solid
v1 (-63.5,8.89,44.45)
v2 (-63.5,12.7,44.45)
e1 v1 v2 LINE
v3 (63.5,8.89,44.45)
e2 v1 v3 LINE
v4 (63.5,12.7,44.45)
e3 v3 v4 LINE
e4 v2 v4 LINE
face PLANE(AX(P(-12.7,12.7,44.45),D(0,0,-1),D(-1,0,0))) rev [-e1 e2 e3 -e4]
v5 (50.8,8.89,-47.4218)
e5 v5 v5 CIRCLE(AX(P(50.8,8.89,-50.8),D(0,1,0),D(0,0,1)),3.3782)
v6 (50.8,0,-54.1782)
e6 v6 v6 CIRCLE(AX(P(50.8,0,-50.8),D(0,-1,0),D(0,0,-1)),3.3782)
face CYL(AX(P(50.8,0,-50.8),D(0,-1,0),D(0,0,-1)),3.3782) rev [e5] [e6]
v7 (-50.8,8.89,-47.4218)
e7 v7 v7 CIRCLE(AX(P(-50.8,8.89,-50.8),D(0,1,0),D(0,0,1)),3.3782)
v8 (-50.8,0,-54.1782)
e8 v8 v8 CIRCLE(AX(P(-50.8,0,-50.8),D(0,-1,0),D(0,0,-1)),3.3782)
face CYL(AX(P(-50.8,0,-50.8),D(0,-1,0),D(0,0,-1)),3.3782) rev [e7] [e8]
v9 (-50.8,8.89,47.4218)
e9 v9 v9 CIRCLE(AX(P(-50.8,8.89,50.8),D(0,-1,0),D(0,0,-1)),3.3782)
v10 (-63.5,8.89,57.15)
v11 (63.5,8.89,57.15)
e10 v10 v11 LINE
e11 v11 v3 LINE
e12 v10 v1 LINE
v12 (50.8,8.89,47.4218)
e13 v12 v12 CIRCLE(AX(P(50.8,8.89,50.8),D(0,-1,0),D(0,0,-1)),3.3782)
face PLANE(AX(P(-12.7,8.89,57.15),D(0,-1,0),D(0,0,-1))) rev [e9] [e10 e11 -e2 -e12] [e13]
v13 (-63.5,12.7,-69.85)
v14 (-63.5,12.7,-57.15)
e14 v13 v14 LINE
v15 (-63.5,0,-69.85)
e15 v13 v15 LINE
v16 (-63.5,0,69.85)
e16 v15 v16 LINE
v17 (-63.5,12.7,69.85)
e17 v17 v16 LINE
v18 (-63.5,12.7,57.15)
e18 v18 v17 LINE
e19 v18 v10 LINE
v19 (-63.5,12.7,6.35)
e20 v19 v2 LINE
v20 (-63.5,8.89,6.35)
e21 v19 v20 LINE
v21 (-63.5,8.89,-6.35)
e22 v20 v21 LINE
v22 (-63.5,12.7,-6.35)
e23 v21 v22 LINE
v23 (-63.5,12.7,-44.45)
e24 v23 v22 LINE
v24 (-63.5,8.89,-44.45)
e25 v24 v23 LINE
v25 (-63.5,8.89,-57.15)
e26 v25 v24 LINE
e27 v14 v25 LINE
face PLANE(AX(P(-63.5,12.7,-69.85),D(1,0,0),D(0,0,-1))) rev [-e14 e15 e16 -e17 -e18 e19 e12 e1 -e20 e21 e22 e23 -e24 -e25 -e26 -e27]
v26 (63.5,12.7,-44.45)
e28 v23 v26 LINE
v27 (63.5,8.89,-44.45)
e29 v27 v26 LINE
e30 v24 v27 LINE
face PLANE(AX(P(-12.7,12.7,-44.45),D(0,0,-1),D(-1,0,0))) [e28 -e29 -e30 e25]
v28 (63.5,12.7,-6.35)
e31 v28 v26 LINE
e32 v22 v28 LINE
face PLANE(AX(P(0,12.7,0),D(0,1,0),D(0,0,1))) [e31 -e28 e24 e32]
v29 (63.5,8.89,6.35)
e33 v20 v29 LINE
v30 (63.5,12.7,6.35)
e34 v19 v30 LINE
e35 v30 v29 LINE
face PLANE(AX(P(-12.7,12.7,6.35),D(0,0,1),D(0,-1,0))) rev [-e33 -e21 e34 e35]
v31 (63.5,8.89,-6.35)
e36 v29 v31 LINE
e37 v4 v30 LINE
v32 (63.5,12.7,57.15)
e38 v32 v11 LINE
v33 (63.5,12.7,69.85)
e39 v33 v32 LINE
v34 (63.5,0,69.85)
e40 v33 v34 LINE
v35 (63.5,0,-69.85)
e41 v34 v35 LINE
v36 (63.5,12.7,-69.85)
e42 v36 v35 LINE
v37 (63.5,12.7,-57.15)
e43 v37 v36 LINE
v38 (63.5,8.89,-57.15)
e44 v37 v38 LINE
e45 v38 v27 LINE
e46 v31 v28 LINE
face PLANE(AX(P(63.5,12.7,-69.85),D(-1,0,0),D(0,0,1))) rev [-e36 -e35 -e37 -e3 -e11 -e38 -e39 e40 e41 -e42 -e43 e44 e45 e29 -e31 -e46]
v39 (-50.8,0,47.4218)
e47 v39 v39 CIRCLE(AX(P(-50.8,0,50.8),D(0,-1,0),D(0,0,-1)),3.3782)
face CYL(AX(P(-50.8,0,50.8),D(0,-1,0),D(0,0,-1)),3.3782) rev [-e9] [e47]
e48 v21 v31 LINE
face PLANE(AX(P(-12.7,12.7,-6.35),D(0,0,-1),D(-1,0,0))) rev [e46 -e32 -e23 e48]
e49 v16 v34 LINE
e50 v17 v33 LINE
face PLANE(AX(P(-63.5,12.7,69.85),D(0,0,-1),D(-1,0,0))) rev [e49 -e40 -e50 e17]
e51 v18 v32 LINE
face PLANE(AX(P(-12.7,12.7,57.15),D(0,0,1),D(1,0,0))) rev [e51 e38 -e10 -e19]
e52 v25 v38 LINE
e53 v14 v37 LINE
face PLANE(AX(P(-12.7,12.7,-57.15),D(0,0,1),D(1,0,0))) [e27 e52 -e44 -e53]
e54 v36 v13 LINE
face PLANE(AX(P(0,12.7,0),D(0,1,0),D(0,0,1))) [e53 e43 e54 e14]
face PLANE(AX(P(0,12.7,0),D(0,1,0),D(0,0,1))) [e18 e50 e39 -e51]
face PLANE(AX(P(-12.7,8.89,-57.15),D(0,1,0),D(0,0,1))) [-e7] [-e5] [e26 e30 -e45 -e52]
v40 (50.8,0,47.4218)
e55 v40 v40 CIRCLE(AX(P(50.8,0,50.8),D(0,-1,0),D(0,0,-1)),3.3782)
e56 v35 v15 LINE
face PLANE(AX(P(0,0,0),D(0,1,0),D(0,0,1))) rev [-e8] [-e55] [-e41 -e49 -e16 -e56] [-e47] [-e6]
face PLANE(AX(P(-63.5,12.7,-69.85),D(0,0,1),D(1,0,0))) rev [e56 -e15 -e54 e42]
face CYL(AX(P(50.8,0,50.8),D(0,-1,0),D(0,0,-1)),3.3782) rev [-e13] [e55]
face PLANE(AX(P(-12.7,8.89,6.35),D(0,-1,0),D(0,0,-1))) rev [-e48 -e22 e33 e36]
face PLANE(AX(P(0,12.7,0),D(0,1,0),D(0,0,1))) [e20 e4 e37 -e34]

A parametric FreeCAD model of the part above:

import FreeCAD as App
import Part
import Sketcher
from FreeCAD import Vector
Q = App.Units.Quantity

doc = App.newDocument("Part")
body = doc.addObject("PartDesign::Body", "Body")

# Sketch on XZ plane
sketch1 = doc.addObject("Sketcher::SketchObject", "Sketch")
body.addObject(sketch1)
sketch1.AttachmentSupport = (doc.XZ_Plane, [""])
sketch1.MapMode = "FlatFace"
sketch1.addGeometry([
    Part.LineSegment(Vector(-63.5, -69.85, 0), Vector(-63.5, 69.85, 0)),
    Part.LineSegment(Vector(-63.5, 69.85, 0), Vector(63.5, 69.85, 0)),
    Part.LineSegment(Vector(63.5, 69.85, 0), Vector(63.5, -69.85, 0)),
    Part.LineSegment(Vector(63.5, -69.85, 0), Vector(-63.5, -69.85, 0)),
], False)
sketch1.addConstraint([
    Sketcher.Constraint("Coincident", 0, 2, 1, 1),
    Sketcher.Constraint("Coincident", 1, 2, 2, 1),
    Sketcher.Constraint("Coincident", 2, 2, 3, 1),
    Sketcher.Constraint("Coincident", 3, 2, 0, 1),
    Sketcher.Constraint("Vertical", 0),
    Sketcher.Constraint("Horizontal", 1),
    Sketcher.Constraint("Vertical", 2),
    Sketcher.Constraint("Horizontal", 3),
    Sketcher.Constraint("Symmetric", 0, 2, 2, 2, -1, 1),
    Sketcher.Constraint("DistanceX", 1, 1, 1, 2, Q("5 in")),
    Sketcher.Constraint("DistanceY", 0, 1, 0, 2, Q("5.5 in")),
])
pad1 = doc.addObject("PartDesign::Pad", "Pad")
body.addObject(pad1)
pad1.Profile = sketch1
pad1.Length = Q("0.5 in")
pad1.Reversed = True

# Sketch on YZ plane
sketch2 = doc.addObject("Sketcher::SketchObject", "Sketch001")
body.addObject(sketch2)
sketch2.AttachmentSupport = (doc.YZ_Plane, [""])
sketch2.MapMode = "FlatFace"
sketch2.AttachmentOffset = App.Placement(Vector(0, 0, 2.5 * 25.4), App.Rotation())
sketch2.addGeometry([
    Part.LineSegment(Vector(12.7, 57.15, 0), Vector(8.89, 57.15, 0)),
    Part.LineSegment(Vector(8.89, 57.15, 0), Vector(8.89, 44.45, 0)),
    Part.LineSegment(Vector(8.89, 44.45, 0), Vector(12.7, 44.45, 0)),
    Part.LineSegment(Vector(12.7, 44.45, 0), Vector(12.7, 57.15, 0)),
], False)
sketch2.addConstraint([
    Sketcher.Constraint("Coincident", 0, 2, 1, 1),
    Sketcher.Constraint("Coincident", 1, 2, 2, 1),
    Sketcher.Constraint("Coincident", 2, 2, 3, 1),
    Sketcher.Constraint("Coincident", 3, 2, 0, 1),
    Sketcher.Constraint("Horizontal", 0),
    Sketcher.Constraint("Vertical", 1),
    Sketcher.Constraint("Horizontal", 2),
    Sketcher.Constraint("Vertical", 3),
    Sketcher.Constraint("DistanceY", 1, 2, 1, 1, Q("0.5 in")),
    Sketcher.Constraint("DistanceX", 0, 2, 0, 1, Q("0.15 in")),
    Sketcher.Constraint("DistanceX", -1, 1, 2, 2, Q("0.5 in")),
    Sketcher.Constraint("DistanceY", -1, 1, 0, 2, Q("2.25 in")),
])
pocket1 = doc.addObject("PartDesign::Pocket", "Pocket")
body.addObject(pocket1)
pocket1.Profile = sketch2
pocket1.Length = Q("3 in")
doc.recompute()

mirrored = doc.addObject("PartDesign::Mirrored", "Mirrored")
body.addObject(mirrored)
mirrored.Originals = [pocket1]
mirrored.MirrorPlane = (doc.XY_Plane, [""])
body.Tip = mirrored

# Sketch on YZ plane
sketch3 = doc.addObject("Sketcher::SketchObject", "Sketch002")
body.addObject(sketch3)
sketch3.AttachmentSupport = (doc.YZ_Plane, [""])
sketch3.MapMode = "FlatFace"
sketch3.AttachmentOffset = App.Placement(Vector(0, 0, 2.5 * 25.4), App.Rotation())
sketch3.addGeometry([
    Part.LineSegment(Vector(12.7, 6.35, 0), Vector(8.89, 6.35, 0)),
    Part.LineSegment(Vector(8.89, 6.35, 0), Vector(8.89, -6.35, 0)),
    Part.LineSegment(Vector(8.89, -6.35, 0), Vector(12.7, -6.35, 0)),
    Part.LineSegment(Vector(12.7, -6.35, 0), Vector(12.7, 6.35, 0)),
], False)
sketch3.addConstraint([
    Sketcher.Constraint("Coincident", 0, 2, 1, 1),
    Sketcher.Constraint("Coincident", 1, 2, 2, 1),
    Sketcher.Constraint("Coincident", 2, 2, 3, 1),
    Sketcher.Constraint("Coincident", 3, 2, 0, 1),
    Sketcher.Constraint("Horizontal", 0),
    Sketcher.Constraint("Vertical", 1),
    Sketcher.Constraint("Horizontal", 2),
    Sketcher.Constraint("Vertical", 3),
    Sketcher.Constraint("DistanceY", 1, 2, 1, 1, Q("0.5 in")),
    Sketcher.Constraint("DistanceX", 0, 2, 0, 1, Q("0.15 in")),
    Sketcher.Constraint("DistanceX", -1, 1, 2, 2, Q("0.5 in")),
    Sketcher.Constraint("DistanceY", -1, 1, 0, 2, Q("0.25 in")),
])
pocket2 = doc.addObject("PartDesign::Pocket", "Pocket001")
body.addObject(pocket2)
pocket2.Profile = sketch3
pocket2.Length = Q("3 in")
doc.recompute()

mirrored2 = doc.addObject("PartDesign::Mirrored", "Mirrored001")
body.addObject(mirrored2)
mirrored2.Originals = [pocket1, pocket2]
mirrored2.MirrorPlane = (doc.YZ_Plane, [""])
body.Tip = mirrored2

# Sketch on YZ plane
sketch4 = doc.addObject("Sketcher::SketchObject", "Sketch003")
body.addObject(sketch4)
sketch4.AttachmentSupport = (doc.YZ_Plane, [""])
sketch4.MapMode = "FlatFace"
sketch4.AttachmentOffset = App.Placement(Vector(0, 0, -2.5 * 25.4), App.Rotation())
sketch4.addGeometry([
    Part.LineSegment(Vector(12.7, -57.15, 0), Vector(8.89, -57.15, 0)),
    Part.LineSegment(Vector(8.89, -57.15, 0), Vector(8.89, -44.45, 0)),
    Part.LineSegment(Vector(8.89, -44.45, 0), Vector(12.7, -44.45, 0)),
    Part.LineSegment(Vector(12.7, -44.45, 0), Vector(12.7, -57.15, 0)),
], False)
sketch4.addConstraint([
    Sketcher.Constraint("Coincident", 0, 2, 1, 1),
    Sketcher.Constraint("Coincident", 1, 2, 2, 1),
    Sketcher.Constraint("Coincident", 2, 2, 3, 1),
    Sketcher.Constraint("Coincident", 3, 2, 0, 1),
    Sketcher.Constraint("Horizontal", 0),
    Sketcher.Constraint("Vertical", 1),
    Sketcher.Constraint("Horizontal", 2),
    Sketcher.Constraint("Vertical", 3),
    Sketcher.Constraint("DistanceY", 1, 1, 1, 2, Q("0.5 in")),
    Sketcher.Constraint("DistanceX", 0, 2, 0, 1, Q("0.15 in")),
    Sketcher.Constraint("DistanceX", -1, 1, 2, 2, Q("0.5 in")),
    Sketcher.Constraint("DistanceY", 0, 2, -1, 1, Q("2.25 in")),
])
pocket3 = doc.addObject("PartDesign::Pocket", "Pocket002")
body.addObject(pocket3)
pocket3.Profile = sketch4
pocket3.Length = Q("3 in")
pocket3.Reversed = True

# Sketch on XZ plane
sketch5 = doc.addObject("Sketcher::SketchObject", "Sketch004")
body.addObject(sketch5)
sketch5.AttachmentSupport = (doc.XZ_Plane, [""])
sketch5.MapMode = "FlatFace"
sketch5.addGeometry([
    Part.Circle(Vector(50.8, 50.8, 0), Vector(0, 0, 1), 3.3782),
    Part.Circle(Vector(50.8, -50.8, 0), Vector(0, 0, 1), 3.3782),
    Part.Circle(Vector(-50.8, -50.8, 0), Vector(0, 0, 1), 3.3782),
    Part.Circle(Vector(-50.8, 50.8, 0), Vector(0, 0, 1), 3.3782),
], False)
sketch5.addConstraint([
    Sketcher.Constraint("Equal", 0, 1),
    Sketcher.Constraint("Equal", 1, 2),
    Sketcher.Constraint("Equal", 2, 3),
    Sketcher.Constraint("Symmetric", 0, 3, 2, 3, -1, 1),
    Sketcher.Constraint("Symmetric", 1, 3, 3, 3, -1, 1),
    Sketcher.Constraint("Symmetric", 1, 3, 2, 3, -2),
    Sketcher.Constraint("Diameter", 0, Q("0.266 in")),
    Sketcher.Constraint("DistanceX", -1, 1, 0, 3, Q("2 in")),
    Sketcher.Constraint("DistanceY", -1, 1, 0, 3, Q("2 in")),
])
doc.recompute()
hole = doc.addObject("PartDesign::Hole", "Hole")
body.addObject(hole)
hole.Profile = sketch5
hole.ThreadType = "None"
hole.Diameter = Q("0.266 in")
hole.DepthType = "ThroughAll"

doc.recompute()
